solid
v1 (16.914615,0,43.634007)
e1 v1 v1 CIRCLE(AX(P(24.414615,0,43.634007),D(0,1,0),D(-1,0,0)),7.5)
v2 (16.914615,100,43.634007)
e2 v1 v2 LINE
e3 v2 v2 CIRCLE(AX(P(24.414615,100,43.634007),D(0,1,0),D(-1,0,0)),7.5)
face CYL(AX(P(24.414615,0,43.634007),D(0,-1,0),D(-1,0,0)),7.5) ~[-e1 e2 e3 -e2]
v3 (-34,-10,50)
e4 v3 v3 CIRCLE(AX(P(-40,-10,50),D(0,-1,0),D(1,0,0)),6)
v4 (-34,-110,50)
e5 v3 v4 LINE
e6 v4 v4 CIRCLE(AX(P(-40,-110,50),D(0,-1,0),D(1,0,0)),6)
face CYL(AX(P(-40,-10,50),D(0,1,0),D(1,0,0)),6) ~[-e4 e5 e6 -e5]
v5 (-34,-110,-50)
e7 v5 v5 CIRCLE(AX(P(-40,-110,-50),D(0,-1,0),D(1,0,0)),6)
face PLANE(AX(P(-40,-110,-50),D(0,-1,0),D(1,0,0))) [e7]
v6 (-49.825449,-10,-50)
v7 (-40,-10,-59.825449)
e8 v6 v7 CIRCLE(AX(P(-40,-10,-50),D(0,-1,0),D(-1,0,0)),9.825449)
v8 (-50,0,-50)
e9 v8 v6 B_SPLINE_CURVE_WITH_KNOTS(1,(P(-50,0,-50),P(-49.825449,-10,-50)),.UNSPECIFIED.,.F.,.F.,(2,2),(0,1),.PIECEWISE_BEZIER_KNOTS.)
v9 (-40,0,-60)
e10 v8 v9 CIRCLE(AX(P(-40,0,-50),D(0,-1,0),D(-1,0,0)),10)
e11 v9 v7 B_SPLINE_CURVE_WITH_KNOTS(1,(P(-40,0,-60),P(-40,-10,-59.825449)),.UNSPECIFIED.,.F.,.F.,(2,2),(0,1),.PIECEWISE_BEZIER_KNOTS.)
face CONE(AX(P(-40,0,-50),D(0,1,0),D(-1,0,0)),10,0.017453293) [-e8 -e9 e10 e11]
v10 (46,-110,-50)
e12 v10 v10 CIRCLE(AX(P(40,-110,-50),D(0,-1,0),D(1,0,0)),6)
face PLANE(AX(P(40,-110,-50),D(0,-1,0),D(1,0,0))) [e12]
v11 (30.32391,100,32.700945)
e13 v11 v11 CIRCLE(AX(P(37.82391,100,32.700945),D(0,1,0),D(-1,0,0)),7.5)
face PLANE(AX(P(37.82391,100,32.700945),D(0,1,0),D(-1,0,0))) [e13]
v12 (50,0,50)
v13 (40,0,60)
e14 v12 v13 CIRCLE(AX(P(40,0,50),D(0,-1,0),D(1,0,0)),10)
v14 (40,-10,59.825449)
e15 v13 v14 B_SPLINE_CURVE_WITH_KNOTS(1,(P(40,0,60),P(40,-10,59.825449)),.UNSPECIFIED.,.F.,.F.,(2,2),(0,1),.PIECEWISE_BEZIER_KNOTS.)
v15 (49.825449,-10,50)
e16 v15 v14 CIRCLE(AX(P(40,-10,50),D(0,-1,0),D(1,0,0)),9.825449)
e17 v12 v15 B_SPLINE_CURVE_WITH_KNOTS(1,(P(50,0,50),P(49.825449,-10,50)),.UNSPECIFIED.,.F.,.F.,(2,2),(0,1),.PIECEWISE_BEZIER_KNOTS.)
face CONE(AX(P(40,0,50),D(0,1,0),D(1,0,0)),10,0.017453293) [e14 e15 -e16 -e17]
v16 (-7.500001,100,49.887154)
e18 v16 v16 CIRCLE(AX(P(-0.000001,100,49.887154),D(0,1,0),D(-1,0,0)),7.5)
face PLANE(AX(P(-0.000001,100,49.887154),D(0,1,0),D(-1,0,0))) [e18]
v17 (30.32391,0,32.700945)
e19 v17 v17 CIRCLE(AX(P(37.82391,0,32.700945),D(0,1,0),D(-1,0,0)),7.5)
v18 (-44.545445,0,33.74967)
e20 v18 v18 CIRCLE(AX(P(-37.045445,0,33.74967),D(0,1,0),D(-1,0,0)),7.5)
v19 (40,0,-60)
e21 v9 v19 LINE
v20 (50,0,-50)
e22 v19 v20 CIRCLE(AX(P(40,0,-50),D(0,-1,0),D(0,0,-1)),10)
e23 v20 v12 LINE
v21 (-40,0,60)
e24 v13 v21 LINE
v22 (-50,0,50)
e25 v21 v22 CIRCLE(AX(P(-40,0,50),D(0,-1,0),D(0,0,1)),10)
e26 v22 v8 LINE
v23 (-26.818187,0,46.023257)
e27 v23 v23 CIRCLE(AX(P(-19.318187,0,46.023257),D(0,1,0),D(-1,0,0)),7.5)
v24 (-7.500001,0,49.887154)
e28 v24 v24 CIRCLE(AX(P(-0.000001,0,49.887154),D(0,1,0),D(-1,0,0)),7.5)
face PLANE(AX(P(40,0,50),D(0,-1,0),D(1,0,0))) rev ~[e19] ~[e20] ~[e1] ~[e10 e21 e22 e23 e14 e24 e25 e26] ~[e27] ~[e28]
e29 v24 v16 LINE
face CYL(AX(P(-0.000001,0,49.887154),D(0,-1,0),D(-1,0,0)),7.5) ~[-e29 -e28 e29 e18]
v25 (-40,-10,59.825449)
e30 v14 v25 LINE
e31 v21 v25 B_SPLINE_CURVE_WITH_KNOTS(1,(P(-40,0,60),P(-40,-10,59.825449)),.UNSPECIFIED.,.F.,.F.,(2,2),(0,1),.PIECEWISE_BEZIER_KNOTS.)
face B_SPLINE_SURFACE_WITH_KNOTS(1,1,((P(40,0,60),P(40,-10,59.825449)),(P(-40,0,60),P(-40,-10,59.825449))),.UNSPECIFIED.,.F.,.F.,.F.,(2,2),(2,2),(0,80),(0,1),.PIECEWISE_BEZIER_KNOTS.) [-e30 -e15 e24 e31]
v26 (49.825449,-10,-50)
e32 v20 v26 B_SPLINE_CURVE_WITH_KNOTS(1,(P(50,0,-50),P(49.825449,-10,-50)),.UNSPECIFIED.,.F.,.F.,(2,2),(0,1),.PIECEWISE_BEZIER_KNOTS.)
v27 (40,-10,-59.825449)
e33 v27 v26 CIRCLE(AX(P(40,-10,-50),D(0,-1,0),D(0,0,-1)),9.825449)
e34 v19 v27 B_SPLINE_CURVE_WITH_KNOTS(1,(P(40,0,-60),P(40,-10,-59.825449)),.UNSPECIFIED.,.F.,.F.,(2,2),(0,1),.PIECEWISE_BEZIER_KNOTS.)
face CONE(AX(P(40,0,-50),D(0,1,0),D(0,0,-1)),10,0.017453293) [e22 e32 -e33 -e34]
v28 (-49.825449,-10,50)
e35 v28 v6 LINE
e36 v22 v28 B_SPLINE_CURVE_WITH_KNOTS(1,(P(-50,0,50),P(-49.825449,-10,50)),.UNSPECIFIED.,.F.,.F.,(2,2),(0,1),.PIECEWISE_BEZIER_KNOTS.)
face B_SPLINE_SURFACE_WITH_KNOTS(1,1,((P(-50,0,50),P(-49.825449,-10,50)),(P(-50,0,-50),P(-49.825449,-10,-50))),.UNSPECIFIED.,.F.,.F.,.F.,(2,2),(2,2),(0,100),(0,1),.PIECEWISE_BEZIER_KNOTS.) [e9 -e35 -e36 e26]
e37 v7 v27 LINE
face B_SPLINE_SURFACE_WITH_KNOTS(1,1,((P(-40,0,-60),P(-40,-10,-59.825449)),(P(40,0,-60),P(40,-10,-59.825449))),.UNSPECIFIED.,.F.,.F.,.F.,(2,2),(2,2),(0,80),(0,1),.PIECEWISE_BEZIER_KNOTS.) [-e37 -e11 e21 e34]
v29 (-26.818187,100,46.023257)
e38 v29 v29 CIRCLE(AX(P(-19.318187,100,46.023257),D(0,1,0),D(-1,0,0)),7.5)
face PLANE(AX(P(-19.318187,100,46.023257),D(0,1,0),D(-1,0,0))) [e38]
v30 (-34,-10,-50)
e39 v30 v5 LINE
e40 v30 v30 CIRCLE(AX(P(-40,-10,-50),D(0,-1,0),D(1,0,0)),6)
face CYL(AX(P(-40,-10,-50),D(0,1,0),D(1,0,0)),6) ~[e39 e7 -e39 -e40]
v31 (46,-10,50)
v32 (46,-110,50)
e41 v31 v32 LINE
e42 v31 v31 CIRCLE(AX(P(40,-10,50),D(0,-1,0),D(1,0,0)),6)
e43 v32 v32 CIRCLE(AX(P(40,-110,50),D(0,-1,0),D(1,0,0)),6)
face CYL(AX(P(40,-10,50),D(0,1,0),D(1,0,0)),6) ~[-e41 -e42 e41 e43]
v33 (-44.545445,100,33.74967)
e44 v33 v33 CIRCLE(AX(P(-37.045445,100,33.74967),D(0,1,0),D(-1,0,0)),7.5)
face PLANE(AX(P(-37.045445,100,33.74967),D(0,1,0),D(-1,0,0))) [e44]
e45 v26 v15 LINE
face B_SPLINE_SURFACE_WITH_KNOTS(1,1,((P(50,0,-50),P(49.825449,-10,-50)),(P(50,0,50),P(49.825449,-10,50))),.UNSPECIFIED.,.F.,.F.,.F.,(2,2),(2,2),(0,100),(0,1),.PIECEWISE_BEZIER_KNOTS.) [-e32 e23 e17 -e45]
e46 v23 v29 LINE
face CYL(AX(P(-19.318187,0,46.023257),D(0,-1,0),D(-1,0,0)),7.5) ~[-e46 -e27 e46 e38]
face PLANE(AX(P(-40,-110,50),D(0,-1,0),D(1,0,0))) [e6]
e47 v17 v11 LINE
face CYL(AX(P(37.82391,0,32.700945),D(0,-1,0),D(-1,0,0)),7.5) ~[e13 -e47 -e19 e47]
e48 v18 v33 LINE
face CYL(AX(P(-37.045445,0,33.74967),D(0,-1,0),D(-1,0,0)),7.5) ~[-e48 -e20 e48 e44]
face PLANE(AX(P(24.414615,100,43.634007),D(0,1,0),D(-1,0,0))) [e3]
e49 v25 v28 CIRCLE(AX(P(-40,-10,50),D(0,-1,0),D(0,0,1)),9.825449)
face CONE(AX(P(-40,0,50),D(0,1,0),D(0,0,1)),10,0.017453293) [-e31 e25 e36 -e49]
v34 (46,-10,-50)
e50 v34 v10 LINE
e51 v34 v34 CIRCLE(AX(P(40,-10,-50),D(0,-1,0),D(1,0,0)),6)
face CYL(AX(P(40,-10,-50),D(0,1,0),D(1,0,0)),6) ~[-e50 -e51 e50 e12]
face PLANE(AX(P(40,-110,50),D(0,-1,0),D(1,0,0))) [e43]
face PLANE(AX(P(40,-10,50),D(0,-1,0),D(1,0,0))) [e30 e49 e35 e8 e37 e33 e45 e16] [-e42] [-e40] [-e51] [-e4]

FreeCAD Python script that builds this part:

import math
import FreeCAD as App
import Part
import Sketcher

doc = App.newDocument("Part")
body = doc.addObject("PartDesign::Body", "Body")

# Sketch on XZ plane
sketch1 = doc.addObject("Sketcher::SketchObject", "Sketch")
body.addObject(sketch1)
sketch1.AttachmentSupport = (doc.XZ_Plane, [""])
sketch1.MapMode = "FlatFace"
sketch1.addGeometry([
    Part.ArcOfCircle(Part.Circle(App.Vector(40, 50, 0), App.Vector(0, 0, 1), 10), math.radians(0), math.radians(90)),  # 0
    Part.LineSegment(App.Vector(40, 60, 0), App.Vector(-40, 60, 0)),  # 1
    Part.ArcOfCircle(Part.Circle(App.Vector(-40, 50, 0), App.Vector(0, 0, 1), 10), math.radians(90), math.radians(180)),  # 2
    Part.LineSegment(App.Vector(-50, 50, 0), App.Vector(-50, -50, 0)),  # 3
    Part.ArcOfCircle(Part.Circle(App.Vector(-40, -50, 0), App.Vector(0, 0, 1), 10), math.radians(180), math.radians(270)),  # 4
    Part.LineSegment(App.Vector(-40, -60, 0), App.Vector(40, -60, 0)),  # 5
    Part.ArcOfCircle(Part.Circle(App.Vector(40, -50, 0), App.Vector(0, 0, 1), 10), math.radians(-90), math.radians(0)),  # 6
    Part.LineSegment(App.Vector(50, -50, 0), App.Vector(50, 50, 0)),  # 7
], False)
sketch1.addConstraint([
    Sketcher.Constraint("Tangent", 0, 2, 1, 1),
    Sketcher.Constraint("Tangent", 1, 2, 2, 1),
    Sketcher.Constraint("Tangent", 2, 2, 3, 1),
    Sketcher.Constraint("Tangent", 3, 2, 4, 1),
    Sketcher.Constraint("Tangent", 4, 2, 5, 1),
    Sketcher.Constraint("Tangent", 5, 2, 6, 1),
    Sketcher.Constraint("Tangent", 6, 2, 7, 1),
    Sketcher.Constraint("Tangent", 7, 2, 0, 1),
    Sketcher.Constraint("Horizontal", 1),
    Sketcher.Constraint("Vertical", 3),
    Sketcher.Constraint("Horizontal", 5),
    Sketcher.Constraint("Vertical", 7),
    Sketcher.Constraint("Equal", 0, 2),
    Sketcher.Constraint("Equal", 2, 4),
    Sketcher.Constraint("Equal", 4, 6),
    Sketcher.Constraint("Symmetric", 0, 3, 4, 3, -1, 1),
    Sketcher.Constraint("Radius", 0, 10.0),
    Sketcher.Constraint("DistanceX", 1, 2, 1, 1, 80.0),
    Sketcher.Constraint("DistanceY", 3, 2, 3, 1, 100.0),
])
pad1 = doc.addObject("PartDesign::Pad", "Pad")
body.addObject(pad1)
pad1.Profile = sketch1
pad1.Length = 10
pad1.TaperAngle = -1

# Sketch on XZ plane
sketch2 = doc.addObject("Sketcher::SketchObject", "Sketch001")
body.addObject(sketch2)
sketch2.AttachmentSupport = (doc.XZ_Plane, [""])
sketch2.MapMode = "FlatFace"
sketch2.AttachmentOffset = App.Placement(App.Vector(0, 0, 10), App.Rotation())
sketch2.addGeometry([
    Part.Circle(App.Vector(-40, 50, 0), App.Vector(0, 0, 1), 6),
    Part.Circle(App.Vector(40, 50, 0), App.Vector(0, 0, 1), 6),
    Part.Circle(App.Vector(40, -50, 0), App.Vector(0, 0, 1), 6),
    Part.Circle(App.Vector(-40, -50, 0), App.Vector(0, 0, 1), 6),
], False)
sketch2.addConstraint([
    Sketcher.Constraint("Equal", 0, 1),
    Sketcher.Constraint("Equal", 1, 2),
    Sketcher.Constraint("Equal", 2, 3),
    Sketcher.Constraint("Symmetric", 0, 3, 2, 3, -1, 1),
    Sketcher.Constraint("Symmetric", 1, 3, 3, 3, -1, 1),
    Sketcher.Constraint("Symmetric", 0, 3, 1, 3, -2),
    Sketcher.Constraint("Diameter", 0, 12.0),
    Sketcher.Constraint("DistanceX", 0, 3, -1, 1, 40.0),
    Sketcher.Constraint("DistanceY", -1, 1, 0, 3, 50.0),
])
pad2 = doc.addObject("PartDesign::Pad", "Pad001")
body.addObject(pad2)
pad2.Profile = sketch2
pad2.Length = 100

# Sketch on XZ plane
sketch3 = doc.addObject("Sketcher::SketchObject", "Sketch002")
body.addObject(sketch3)
sketch3.AttachmentSupport = (doc.XZ_Plane, [""])
sketch3.MapMode = "FlatFace"
sketch3.addGeometry([
    Part.Circle(App.Vector(38, 33, 0), App.Vector(0, 0, 1), 8),  # 0
    Part.Circle(App.Vector(24, 44, 0), App.Vector(0, 0, 1), 8),  # 1
    Part.Circle(App.Vector(0, 50, 0), App.Vector(0, 0, 1), 8),  # 2
    Part.Circle(App.Vector(-19, 46, 0), App.Vector(0, 0, 1), 8),  # 3
    Part.Circle(App.Vector(-37, 34, 0), App.Vector(0, 0, 1), 8),  # 4
], False)
sketch3.addConstraint([
    Sketcher.Constraint("Equal", 0, 1),
    Sketcher.Constraint("Equal", 1, 2),
    Sketcher.Constraint("Equal", 2, 3),
    Sketcher.Constraint("Equal", 3, 4),
    Sketcher.Constraint("PointOnObject", 2, 3, -2),
    Sketcher.Constraint("Diameter", 0, 15.0),
    Sketcher.Constraint("DistanceX", 3, 3, 1, 3, 43.732802),
    Sketcher.Constraint("DistanceX", -1, 1, 0, 3, 37.82391),
    Sketcher.Constraint("DistanceY", -1, 1, 4, 3, 33.74967),
    Sketcher.Constraint("DistanceY", 0, 3, 1, 3, 10.933062),
    Sketcher.Constraint("DistanceY", 0, 3, 2, 3, 17.186209),
    Sketcher.Constraint("DistanceY", 1, 3, 3, 3, 2.38925),
    Sketcher.Constraint("DistanceX", 4, 3, 3, 3, 17.727259),
    Sketcher.Constraint("DistanceY", -1, 1, 0, 3, 32.700945),
    Sketcher.Constraint("DistanceX", -1, 1, 1, 3, 24.414615),
])
pad3 = doc.addObject("PartDesign::Pad", "Pad002")
body.addObject(pad3)
pad3.Profile = sketch3
pad3.Length = 100
pad3.Reversed = True

doc.recompute()
